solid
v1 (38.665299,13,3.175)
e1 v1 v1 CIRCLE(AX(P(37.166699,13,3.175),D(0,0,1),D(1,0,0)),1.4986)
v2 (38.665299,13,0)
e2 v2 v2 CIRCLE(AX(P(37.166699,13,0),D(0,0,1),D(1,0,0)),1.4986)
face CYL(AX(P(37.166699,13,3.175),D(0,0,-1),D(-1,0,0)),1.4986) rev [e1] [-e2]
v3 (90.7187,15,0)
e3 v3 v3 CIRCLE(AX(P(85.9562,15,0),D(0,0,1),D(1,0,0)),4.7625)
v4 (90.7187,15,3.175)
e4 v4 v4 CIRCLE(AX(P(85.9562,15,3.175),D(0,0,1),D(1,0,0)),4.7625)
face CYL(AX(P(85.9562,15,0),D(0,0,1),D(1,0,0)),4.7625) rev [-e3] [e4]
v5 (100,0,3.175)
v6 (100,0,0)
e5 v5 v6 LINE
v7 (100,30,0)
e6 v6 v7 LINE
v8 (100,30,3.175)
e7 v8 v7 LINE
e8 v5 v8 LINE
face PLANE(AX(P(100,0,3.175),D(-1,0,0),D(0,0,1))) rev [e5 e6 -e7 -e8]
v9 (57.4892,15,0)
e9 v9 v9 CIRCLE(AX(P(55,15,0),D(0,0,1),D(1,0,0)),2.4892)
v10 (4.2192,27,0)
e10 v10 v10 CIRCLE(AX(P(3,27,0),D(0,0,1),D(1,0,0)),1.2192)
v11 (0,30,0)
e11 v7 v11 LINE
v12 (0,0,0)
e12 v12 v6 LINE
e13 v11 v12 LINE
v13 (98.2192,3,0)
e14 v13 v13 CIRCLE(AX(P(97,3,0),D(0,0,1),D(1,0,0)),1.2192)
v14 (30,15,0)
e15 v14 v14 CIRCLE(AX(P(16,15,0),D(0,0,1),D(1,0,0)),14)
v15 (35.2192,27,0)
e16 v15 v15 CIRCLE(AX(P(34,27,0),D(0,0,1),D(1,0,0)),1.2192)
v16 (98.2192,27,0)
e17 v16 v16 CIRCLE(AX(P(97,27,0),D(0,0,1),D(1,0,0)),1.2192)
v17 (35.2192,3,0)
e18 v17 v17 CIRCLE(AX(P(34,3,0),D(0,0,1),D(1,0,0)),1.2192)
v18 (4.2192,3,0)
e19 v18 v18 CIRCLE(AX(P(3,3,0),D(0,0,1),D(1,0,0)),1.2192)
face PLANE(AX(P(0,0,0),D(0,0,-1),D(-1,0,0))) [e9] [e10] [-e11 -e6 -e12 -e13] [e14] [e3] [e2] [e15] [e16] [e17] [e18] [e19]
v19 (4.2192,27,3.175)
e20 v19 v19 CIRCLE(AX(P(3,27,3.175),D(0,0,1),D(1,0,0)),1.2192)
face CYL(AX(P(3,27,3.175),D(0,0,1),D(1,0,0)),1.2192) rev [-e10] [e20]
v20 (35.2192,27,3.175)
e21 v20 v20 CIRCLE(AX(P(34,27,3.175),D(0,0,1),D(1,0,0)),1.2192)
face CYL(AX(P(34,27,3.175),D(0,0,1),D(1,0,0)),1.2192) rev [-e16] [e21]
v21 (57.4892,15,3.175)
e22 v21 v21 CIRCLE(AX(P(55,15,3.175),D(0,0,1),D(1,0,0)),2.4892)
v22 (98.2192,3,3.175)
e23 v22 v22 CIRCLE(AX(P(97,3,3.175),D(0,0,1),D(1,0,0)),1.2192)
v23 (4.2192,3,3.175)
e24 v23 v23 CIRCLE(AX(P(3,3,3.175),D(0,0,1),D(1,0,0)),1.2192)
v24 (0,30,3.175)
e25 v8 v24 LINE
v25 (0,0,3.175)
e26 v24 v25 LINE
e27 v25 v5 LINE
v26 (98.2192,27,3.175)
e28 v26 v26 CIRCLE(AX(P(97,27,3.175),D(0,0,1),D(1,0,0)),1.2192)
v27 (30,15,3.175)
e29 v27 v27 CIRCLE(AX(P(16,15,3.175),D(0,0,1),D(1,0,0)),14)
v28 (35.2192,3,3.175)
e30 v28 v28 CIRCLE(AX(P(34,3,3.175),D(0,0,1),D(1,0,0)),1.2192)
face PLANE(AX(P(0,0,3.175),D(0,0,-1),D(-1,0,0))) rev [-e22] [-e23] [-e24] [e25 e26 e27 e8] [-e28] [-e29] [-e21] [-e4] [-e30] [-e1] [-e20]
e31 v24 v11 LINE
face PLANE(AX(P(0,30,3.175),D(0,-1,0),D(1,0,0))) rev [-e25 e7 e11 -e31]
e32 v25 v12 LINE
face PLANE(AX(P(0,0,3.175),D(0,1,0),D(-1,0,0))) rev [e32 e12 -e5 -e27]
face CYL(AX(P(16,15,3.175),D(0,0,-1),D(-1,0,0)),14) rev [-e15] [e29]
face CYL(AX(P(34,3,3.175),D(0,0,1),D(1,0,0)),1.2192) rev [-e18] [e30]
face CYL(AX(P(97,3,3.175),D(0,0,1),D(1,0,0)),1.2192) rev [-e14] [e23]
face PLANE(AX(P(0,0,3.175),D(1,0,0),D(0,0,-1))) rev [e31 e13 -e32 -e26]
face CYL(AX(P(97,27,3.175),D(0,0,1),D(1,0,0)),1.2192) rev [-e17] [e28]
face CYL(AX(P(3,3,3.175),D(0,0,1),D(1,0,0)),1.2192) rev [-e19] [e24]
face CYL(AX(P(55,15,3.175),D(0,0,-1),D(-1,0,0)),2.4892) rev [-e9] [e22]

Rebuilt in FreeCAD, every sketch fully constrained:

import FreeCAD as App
import Part
import Sketcher
Q = App.Units.Quantity


def add_polygon(sketch, points):
    """Adds a closed chain of lines whose ends are joined by coincident constraints."""
    first, n = sketch.GeometryCount, len(points)
    for a, b in zip(points, points[1:] + points[:1]):
        sketch.addGeometry(Part.LineSegment(App.Vector(*a, 0), App.Vector(*b, 0)), False)
    for i in range(n):
        sketch.addConstraint(Sketcher.Constraint("Coincident", first + i, 2, first + (i + 1) % n, 1))

doc = App.newDocument("Part")
body = doc.addObject("PartDesign::Body", "Body")

sketch1 = doc.addObject("Sketcher::SketchObject", "Sketch")
body.addObject(sketch1)
sketch1.AttachmentSupport = (doc.XY_Plane, [""])
sketch1.MapMode = "FlatFace"
add_polygon(sketch1, [(0, 30), (0, 0), (100, 0), (100, 30)])
sketch1.addGeometry(Part.Circle(App.Vector(37.2, 13, 0), App.Vector(0, 0, 1), 1.5), False)
sketch1.addGeometry(Part.Circle(App.Vector(16, 15, 0), App.Vector(0, 0, 1), 14), False)
sketch1.addGeometry(Part.Circle(App.Vector(55, 15, 0), App.Vector(0, 0, 1), 2.5), False)
sketch1.addConstraint([
    Sketcher.Constraint("Vertical", 0),
    Sketcher.Constraint("Horizontal", 1),
    Sketcher.Constraint("Vertical", 2),
    Sketcher.Constraint("Horizontal", 3),
    Sketcher.Constraint("Coincident", 0, 2, -1, 1),
    Sketcher.Constraint("Horizontal", 5, 3, 6, 3),
    Sketcher.Constraint("Diameter", 4, Q("0.118 in")),
    Sketcher.Constraint("Diameter", 6, Q("0.196 in")),
    Sketcher.Constraint("Diameter", 5, Q("28 mm")),
    Sketcher.Constraint("DistanceX", 1, 1, 1, 2, Q("100 mm")),
    Sketcher.Constraint("DistanceY", 0, 2, 0, 1, Q("30 mm")),
    Sketcher.Constraint("DistanceX", -1, 1, 4, 3, Q("37.166699 mm")),
    Sketcher.Constraint("DistanceY", -1, 1, 4, 3, Q("13 mm")),
    Sketcher.Constraint("DistanceX", -1, 1, 5, 3, Q("16 mm")),
    Sketcher.Constraint("DistanceY", -1, 1, 5, 3, Q("15 mm")),
    Sketcher.Constraint("DistanceX", -1, 1, 6, 3, Q("55 mm")),
])
pad1 = doc.addObject("PartDesign::Pad", "Pad")
body.addObject(pad1)
pad1.Profile = sketch1
pad1.Length = Q("0.125 in")

sketch2 = doc.addObject("Sketcher::SketchObject", "Sketch001")
body.addObject(sketch2)
sketch2.AttachmentSupport = (doc.XY_Plane, [""])
sketch2.MapMode = "FlatFace"
sketch2.AttachmentOffset = App.Placement(App.Vector(0, 0, 0.125 * 25.4), App.Rotation())
sketch2.addGeometry([
    Part.Circle(App.Vector(97, 3, 0), App.Vector(0, 0, 1), 1.2),
    Part.Circle(App.Vector(97, 27, 0), App.Vector(0, 0, 1), 1.2),
    Part.Circle(App.Vector(3, 27, 0), App.Vector(0, 0, 1), 1.2),
    Part.Circle(App.Vector(3, 3, 0), App.Vector(0, 0, 1), 1.2),
    Part.Circle(App.Vector(34, 27, 0), App.Vector(0, 0, 1), 1.2),
    Part.Circle(App.Vector(34, 3, 0), App.Vector(0, 0, 1), 1.2),
], False)
sketch2.addConstraint([
    Sketcher.Constraint("Equal", 0, 1),
    Sketcher.Constraint("Equal", 1, 2),
    Sketcher.Constraint("Equal", 2, 3),
    Sketcher.Constraint("Equal", 3, 4),
    Sketcher.Constraint("Equal", 4, 5),
    Sketcher.Constraint("Horizontal", 1, 3, 2, 3),
    Sketcher.Constraint("Horizontal", 0, 3, 3, 3),
    Sketcher.Constraint("Horizontal", 2, 3, 4, 3),
    Sketcher.Constraint("Horizontal", 3, 3, 5, 3),
    Sketcher.Constraint("Vertical", 0, 3, 1, 3),
    Sketcher.Constraint("Vertical", 2, 3, 3, 3),
    Sketcher.Constraint("Vertical", 4, 3, 5, 3),
    Sketcher.Constraint("Diameter", 0, Q("0.096 in")),
    Sketcher.Constraint("DistanceX", -1, 1, 0, 3, Q("97 mm")),
    Sketcher.Constraint("DistanceY", -1, 1, 0, 3, Q("3 mm")),
    Sketcher.Constraint("DistanceY", -1, 1, 1, 3, Q("27 mm")),
    Sketcher.Constraint("DistanceX", -1, 1, 2, 3, Q("3 mm")),
    Sketcher.Constraint("DistanceX", -1, 1, 4, 3, Q("34 mm")),
])
doc.recompute()
hole = doc.addObject("PartDesign::Hole", "Hole")
body.addObject(hole)
hole.Profile = sketch2
hole.ThreadType = "None"
hole.Diameter = Q("0.096 in")
hole.DepthType = "ThroughAll"

sketch3 = doc.addObject("Sketcher::SketchObject", "Sketch002")
body.addObject(sketch3)
sketch3.AttachmentSupport = (doc.XY_Plane, [""])
sketch3.MapMode = "FlatFace"
sketch3.AttachmentOffset = App.Placement(App.Vector(0, 0, 0.125 * 25.4), App.Rotation())
sketch3.addGeometry(Part.Circle(App.Vector(86, 15, 0), App.Vector(0, 0, 1), 4.8), False)
sketch3.addConstraint([
    Sketcher.Constraint("Diameter", 0, Q("0.375 in")),
    Sketcher.Constraint("DistanceX", -1, 1, 0, 3, Q("85.9562 mm")),
    Sketcher.Constraint("DistanceY", -1, 1, 0, 3, Q("15 mm")),
])
pocket1 = doc.addObject("PartDesign::Pocket", "Pocket")
body.addObject(pocket1)
pocket1.Profile = sketch3
pocket1.Type = "ThroughAll"

doc.recompute()
